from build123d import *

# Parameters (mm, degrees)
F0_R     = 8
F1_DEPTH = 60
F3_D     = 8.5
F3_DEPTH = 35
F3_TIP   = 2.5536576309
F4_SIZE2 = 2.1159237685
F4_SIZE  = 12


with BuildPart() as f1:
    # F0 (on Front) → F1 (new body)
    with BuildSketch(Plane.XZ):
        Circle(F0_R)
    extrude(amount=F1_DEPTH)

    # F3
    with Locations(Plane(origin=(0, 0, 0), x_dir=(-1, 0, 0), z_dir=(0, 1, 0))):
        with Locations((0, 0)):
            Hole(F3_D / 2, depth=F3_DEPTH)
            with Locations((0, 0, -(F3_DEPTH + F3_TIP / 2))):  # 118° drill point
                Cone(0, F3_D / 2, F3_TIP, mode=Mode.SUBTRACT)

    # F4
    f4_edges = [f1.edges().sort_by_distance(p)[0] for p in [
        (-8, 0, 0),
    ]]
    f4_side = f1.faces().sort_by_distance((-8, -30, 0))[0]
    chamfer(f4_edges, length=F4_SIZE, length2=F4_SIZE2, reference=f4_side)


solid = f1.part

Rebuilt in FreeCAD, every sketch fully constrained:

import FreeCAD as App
import Part
import Sketcher
from FreeCAD import Vector


def edges_at(feature, points):
    """Names of the edges that pass closest to the given points."""
    edges = feature.Shape.Edges
    near = lambda p: min(range(len(edges)), key=lambda i: edges[i].distToShape(Part.Vertex(*p))[0])
    return sorted({f"Edge{near(p) + 1}" for p in points})

doc = App.newDocument("Part")
body = doc.addObject("PartDesign::Body", "Body")

sketch1 = body.newObject("Sketcher::SketchObject", "Sketch")
sketch1.AttachmentSupport = (doc.getObject("XZ_Plane"), [""])
sketch1.MapMode = "FlatFace"
sketch1.addGeometry(Part.Circle(Vector(0, 0, 0), Vector(0, 0, 1), 8), False)
sketch1.addConstraint(Sketcher.Constraint("Coincident", 0, 3, -1, 1))
sketch1.addConstraint(Sketcher.Constraint("Diameter", 0, 16.0))
pad1 = body.newObject("PartDesign::Pad", "Pad")
pad1.Profile = sketch1
pad1.Length = 60

sketch2 = body.newObject("Sketcher::SketchObject", "Sketch001")
sketch2.AttachmentSupport = (doc.getObject("XZ_Plane"), [""])
sketch2.MapMode = "FlatFace"
sketch2.addGeometry(Part.Circle(Vector(0, 0, 0), Vector(0, 0, 1), 4.2), False)
sketch2.addConstraint(Sketcher.Constraint("Coincident", 0, 3, -1, 1))
sketch2.addConstraint(Sketcher.Constraint("Diameter", 0, 8.5))
doc.recompute()
hole = body.newObject("PartDesign::Hole", "Hole")
hole.Profile = sketch2
hole.ThreadType = "None"
hole.Diameter = 8.5
hole.DepthType = "Dimension"
hole.Depth = 35
hole.DrillPoint = "Angled"
hole.DrillPointAngle = 118
hole.Reversed = True
doc.recompute()

chamfer = body.newObject("PartDesign::Chamfer", "Chamfer")
chamfer.Base = (hole, edges_at(hole, [(-8, 0, 0)]))
chamfer.ChamferType = "Two distances"
chamfer.Size = 12
chamfer.Size2 = 2.115924

doc.recompute()
